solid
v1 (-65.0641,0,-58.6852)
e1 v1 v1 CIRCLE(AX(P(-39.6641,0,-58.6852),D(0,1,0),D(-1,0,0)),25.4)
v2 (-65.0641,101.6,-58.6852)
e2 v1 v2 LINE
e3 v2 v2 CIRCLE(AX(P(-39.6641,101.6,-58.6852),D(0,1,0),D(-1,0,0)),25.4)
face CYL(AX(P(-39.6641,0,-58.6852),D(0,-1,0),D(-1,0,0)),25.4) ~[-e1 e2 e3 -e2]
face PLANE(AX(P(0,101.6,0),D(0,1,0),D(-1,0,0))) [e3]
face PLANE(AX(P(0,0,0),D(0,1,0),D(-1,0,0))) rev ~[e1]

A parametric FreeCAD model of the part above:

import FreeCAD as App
import Part
import Sketcher
Q = App.Units.Quantity

doc = App.newDocument("Part")
body = doc.addObject("PartDesign::Body", "Body")

sketch1 = body.newObject("Sketcher::SketchObject", "Sketch")
sketch1.AttachmentSupport = (doc.getObject("XZ_Plane"), [""])
sketch1.MapMode = "FlatFace"
sketch1.addGeometry(Part.Circle(App.Vector(-40, -59, 0), App.Vector(0, 0, 1), 25), False)
sketch1.addConstraint(Sketcher.Constraint("Diameter", 0, Q("2 in")))
sketch1.addConstraint(Sketcher.Constraint("DistanceX", 0, 3, -1, 1, Q("39.664 mm")))
sketch1.addConstraint(Sketcher.Constraint("DistanceY", 0, 3, -1, 1, Q("58.6852 mm")))
pad1 = body.newObject("PartDesign::Pad", "Pad")
pad1.Profile = sketch1
pad1.Length = Q("4 in")
pad1.Reversed = True

doc.recompute()
